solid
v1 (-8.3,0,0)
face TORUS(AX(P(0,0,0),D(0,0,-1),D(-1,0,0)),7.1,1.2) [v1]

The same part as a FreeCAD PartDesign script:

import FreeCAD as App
import Part
import Sketcher
from FreeCAD import Vector
Q = App.Units.Quantity

doc = App.newDocument("Part")
body = doc.addObject("PartDesign::Body", "Body")

sketch1 = body.newObject("Sketcher::SketchObject", "Sketch")
sketch1.AttachmentSupport = (doc.getObject("XZ_Plane"), [""])
sketch1.MapMode = "FlatFace"
sketch1.addGeometry(Part.Circle(Vector(-7.1, 0, 0), Vector(0, 0, 1), 1.2), False)
sketch1.addConstraint([
    Sketcher.Constraint("PointOnObject", 0, 3, -1),
    Sketcher.Constraint("Diameter", 0, Q("2.4 mm")),
    Sketcher.Constraint("DistanceX", 0, 3, -1, 1, Q("7.1 mm")),
])

sketch2 = body.newObject("Sketcher::SketchObject", "Sketch001")
sketch2.AttachmentSupport = (doc.getObject("XY_Plane"), [""])
sketch2.MapMode = "FlatFace"
sketch2.addGeometry(Part.Circle(Vector(0, 0, 0), Vector(0, 0, 1), 6), False)
sketch2.addConstraint([
    Sketcher.Constraint("Coincident", 0, 3, -1, 1),
    Sketcher.Constraint("Diameter", 0, Q("11.8 mm")),
])
doc.recompute()

additivepipe = body.newObject("PartDesign::AdditivePipe", "AdditivePipe")
additivepipe.Profile = sketch1
additivepipe.Spine = (sketch2, ["Edge1"])

doc.recompute()
